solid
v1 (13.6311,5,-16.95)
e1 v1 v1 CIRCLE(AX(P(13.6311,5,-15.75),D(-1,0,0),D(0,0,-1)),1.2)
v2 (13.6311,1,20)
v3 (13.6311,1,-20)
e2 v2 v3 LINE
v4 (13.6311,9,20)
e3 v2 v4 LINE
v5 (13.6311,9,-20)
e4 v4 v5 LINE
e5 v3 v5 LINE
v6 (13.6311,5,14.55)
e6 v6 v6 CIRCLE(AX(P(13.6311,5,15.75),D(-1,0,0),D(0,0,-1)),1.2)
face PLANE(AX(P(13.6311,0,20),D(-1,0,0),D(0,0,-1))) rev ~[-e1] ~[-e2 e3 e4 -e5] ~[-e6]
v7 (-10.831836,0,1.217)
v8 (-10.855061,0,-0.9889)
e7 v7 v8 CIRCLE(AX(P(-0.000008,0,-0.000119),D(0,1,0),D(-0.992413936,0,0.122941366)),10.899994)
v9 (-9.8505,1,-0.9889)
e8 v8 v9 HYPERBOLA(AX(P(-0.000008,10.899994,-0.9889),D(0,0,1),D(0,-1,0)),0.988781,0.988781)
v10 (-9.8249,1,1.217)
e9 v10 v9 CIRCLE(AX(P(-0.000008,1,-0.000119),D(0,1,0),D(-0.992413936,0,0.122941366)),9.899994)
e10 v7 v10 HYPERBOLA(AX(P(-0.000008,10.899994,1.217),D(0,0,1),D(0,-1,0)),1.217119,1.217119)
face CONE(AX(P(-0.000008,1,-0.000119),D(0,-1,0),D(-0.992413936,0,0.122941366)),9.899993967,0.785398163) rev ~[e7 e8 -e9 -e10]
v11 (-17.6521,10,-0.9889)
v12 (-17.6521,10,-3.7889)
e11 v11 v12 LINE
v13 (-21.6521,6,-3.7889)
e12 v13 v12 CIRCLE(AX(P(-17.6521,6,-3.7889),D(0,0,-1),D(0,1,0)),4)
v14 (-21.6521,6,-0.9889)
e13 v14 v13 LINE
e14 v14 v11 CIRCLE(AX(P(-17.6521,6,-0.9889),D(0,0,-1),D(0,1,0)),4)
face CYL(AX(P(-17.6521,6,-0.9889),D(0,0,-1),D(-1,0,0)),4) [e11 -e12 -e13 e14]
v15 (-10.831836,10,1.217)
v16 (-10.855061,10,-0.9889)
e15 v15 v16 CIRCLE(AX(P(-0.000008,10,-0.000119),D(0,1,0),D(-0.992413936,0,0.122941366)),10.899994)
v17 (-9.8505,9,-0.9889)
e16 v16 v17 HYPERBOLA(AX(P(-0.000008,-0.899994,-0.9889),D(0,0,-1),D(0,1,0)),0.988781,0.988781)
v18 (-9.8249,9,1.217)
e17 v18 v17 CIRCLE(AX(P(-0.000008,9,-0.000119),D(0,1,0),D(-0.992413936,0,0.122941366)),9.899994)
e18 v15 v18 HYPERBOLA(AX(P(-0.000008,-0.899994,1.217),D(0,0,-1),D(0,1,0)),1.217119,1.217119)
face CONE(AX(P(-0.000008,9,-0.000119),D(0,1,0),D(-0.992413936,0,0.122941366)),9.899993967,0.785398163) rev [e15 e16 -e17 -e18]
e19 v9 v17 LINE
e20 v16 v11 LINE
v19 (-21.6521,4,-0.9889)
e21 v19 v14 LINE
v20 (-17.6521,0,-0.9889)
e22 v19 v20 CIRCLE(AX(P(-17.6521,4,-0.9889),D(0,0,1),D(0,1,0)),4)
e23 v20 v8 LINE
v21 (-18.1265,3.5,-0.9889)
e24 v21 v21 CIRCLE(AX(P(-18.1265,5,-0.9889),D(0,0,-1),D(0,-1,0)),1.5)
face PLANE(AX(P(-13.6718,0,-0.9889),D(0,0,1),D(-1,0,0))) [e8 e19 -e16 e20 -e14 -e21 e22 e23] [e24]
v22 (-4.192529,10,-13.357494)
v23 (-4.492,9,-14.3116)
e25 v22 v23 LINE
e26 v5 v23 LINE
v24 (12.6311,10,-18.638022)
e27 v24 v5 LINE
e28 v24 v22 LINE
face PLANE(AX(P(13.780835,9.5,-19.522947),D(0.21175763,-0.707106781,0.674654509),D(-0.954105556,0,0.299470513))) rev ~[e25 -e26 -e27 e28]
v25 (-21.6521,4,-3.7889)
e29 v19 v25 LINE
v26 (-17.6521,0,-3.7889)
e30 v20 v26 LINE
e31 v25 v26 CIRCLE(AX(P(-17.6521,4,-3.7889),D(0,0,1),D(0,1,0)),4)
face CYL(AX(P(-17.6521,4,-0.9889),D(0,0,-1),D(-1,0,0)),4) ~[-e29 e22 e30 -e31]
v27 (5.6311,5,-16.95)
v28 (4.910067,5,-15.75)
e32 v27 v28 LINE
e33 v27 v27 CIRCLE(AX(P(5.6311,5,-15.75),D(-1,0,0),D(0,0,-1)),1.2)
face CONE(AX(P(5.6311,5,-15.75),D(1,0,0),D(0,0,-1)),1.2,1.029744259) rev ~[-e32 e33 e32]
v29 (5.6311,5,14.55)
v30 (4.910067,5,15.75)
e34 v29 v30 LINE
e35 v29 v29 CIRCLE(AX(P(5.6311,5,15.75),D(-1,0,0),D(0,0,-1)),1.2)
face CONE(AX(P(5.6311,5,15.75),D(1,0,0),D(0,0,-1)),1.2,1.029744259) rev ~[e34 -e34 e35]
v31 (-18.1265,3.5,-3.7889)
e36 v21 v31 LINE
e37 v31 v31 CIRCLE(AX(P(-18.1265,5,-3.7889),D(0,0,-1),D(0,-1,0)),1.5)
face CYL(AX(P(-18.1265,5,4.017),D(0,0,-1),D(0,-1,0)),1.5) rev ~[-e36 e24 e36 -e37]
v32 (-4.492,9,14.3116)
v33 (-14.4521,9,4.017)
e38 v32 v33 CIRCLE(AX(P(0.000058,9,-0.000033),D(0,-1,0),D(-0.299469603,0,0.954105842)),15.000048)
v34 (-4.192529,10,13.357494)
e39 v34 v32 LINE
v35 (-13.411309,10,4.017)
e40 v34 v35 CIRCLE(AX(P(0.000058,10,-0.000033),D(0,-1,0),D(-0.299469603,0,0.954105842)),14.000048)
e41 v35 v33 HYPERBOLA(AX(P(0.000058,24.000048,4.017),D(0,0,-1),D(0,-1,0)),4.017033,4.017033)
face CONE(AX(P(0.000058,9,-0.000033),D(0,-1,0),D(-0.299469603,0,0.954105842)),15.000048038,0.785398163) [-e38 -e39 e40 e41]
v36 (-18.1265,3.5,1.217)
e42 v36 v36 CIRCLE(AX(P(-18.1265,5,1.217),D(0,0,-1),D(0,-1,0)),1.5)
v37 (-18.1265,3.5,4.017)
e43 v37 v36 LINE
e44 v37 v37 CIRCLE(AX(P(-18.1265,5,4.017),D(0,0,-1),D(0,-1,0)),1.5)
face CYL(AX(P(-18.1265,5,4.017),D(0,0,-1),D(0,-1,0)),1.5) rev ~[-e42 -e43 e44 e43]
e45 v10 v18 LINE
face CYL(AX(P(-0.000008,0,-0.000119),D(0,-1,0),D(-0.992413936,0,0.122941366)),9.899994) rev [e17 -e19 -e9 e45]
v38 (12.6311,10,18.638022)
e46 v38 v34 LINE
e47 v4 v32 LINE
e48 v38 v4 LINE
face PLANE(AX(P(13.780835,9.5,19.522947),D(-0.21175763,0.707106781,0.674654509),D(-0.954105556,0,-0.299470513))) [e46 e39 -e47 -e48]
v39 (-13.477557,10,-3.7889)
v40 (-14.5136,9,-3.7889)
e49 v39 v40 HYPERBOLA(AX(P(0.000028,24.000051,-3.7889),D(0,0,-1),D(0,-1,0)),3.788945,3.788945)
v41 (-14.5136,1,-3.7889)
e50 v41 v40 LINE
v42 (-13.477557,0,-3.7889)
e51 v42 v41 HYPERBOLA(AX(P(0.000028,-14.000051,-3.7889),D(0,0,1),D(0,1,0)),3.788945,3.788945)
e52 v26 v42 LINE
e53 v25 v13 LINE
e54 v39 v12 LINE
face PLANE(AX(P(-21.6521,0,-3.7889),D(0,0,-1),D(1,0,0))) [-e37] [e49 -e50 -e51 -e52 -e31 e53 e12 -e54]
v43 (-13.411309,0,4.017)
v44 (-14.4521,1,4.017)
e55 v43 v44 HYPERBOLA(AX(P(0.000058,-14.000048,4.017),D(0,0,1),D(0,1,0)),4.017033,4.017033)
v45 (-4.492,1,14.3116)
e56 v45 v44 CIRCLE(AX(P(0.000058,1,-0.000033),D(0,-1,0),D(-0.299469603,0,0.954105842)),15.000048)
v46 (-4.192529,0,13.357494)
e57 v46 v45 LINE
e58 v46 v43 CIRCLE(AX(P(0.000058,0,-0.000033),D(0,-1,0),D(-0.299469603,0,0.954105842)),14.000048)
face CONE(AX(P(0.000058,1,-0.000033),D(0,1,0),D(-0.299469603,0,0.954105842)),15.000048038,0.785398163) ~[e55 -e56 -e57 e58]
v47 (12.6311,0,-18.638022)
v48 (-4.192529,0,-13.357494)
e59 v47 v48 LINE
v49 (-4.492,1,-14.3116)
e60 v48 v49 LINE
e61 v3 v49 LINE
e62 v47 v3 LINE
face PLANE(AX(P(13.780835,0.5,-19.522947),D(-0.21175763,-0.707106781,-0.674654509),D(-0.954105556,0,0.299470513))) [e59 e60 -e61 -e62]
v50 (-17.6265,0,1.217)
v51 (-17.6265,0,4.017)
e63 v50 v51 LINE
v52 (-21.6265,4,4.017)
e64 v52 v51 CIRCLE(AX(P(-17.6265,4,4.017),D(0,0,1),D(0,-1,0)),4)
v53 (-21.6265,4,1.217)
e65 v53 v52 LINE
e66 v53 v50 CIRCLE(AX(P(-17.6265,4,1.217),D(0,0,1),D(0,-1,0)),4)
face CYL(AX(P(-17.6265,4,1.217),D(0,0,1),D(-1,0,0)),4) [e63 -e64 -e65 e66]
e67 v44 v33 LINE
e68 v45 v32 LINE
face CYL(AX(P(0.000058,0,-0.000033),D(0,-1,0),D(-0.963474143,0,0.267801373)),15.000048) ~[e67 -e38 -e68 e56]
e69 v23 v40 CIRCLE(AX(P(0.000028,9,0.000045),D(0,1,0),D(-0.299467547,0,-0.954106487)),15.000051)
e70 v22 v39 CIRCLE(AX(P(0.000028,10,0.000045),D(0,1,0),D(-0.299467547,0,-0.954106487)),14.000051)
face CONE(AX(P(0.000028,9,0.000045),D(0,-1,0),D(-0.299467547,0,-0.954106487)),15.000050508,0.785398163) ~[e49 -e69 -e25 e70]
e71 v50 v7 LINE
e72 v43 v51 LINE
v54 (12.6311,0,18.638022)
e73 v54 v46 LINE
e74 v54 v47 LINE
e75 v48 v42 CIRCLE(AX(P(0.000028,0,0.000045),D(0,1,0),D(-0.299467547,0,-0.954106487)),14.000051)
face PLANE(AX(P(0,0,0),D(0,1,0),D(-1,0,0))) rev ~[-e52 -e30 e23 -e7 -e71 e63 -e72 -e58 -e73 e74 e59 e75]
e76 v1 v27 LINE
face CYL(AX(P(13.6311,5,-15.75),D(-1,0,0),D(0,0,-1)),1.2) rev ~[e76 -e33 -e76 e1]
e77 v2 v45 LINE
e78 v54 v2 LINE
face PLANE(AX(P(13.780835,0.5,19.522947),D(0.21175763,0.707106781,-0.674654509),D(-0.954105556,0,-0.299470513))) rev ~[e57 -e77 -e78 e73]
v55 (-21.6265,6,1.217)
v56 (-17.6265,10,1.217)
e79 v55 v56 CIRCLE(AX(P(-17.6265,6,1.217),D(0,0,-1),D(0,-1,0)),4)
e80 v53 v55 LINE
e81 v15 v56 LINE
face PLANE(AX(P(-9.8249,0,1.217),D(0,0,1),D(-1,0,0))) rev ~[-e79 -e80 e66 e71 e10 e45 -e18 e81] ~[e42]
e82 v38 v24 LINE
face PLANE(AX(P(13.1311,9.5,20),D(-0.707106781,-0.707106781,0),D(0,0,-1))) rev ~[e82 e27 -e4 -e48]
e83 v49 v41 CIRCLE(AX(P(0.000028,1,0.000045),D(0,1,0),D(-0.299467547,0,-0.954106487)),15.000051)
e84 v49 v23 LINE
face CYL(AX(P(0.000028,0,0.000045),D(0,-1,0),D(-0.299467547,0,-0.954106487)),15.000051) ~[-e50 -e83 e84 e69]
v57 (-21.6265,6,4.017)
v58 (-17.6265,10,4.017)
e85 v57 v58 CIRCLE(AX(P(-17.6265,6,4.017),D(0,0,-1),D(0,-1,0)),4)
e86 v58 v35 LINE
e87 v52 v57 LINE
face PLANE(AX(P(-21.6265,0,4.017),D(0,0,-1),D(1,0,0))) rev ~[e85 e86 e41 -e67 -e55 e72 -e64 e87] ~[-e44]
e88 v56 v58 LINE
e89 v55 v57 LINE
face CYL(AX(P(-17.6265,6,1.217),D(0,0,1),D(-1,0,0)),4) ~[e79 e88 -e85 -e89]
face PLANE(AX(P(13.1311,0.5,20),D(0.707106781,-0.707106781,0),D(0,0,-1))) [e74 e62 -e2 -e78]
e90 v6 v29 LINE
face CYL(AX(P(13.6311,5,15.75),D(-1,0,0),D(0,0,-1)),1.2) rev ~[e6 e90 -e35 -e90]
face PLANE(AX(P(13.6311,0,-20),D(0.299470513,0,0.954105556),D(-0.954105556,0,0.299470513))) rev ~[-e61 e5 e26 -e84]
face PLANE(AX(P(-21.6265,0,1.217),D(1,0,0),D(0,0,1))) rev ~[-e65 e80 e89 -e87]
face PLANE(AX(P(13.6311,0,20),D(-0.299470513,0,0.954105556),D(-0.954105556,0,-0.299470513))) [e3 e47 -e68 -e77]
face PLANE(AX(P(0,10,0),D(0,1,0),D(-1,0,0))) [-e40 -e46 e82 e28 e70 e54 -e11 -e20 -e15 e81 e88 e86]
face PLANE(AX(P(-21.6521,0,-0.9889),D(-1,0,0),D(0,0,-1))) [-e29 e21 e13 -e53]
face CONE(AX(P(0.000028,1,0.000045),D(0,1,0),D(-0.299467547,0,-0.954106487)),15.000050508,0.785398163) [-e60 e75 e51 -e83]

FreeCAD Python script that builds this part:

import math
import FreeCAD as App
import Part
import Sketcher
Q = App.Units.Quantity


def edges_at(feature, points):
    """Names of the edges that pass closest to the given points."""
    edges = feature.Shape.Edges
    near = lambda p: min(range(len(edges)), key=lambda i: edges[i].distToShape(Part.Vertex(*p))[0])
    return sorted({f"Edge{near(p) + 1}" for p in points})

doc = App.newDocument("Part")
params = doc.addObject("Spreadsheet::Sheet", "Params")
for row, (alias, value) in enumerate([
    ("sketch1_radius", "15 mm"),
    ("sketch1_radius2", "9.9 mm"),
    ("sketch1_height", "40 mm"),
    ("sketch1_height2", "2.8 mm"),
    ("pad1_length", "10 mm"),
    ("fillet_radius", "4 mm"),
    ("sketch2_diameter", "3 mm"),
    ("hole_diameter", "3 mm"),
    ("hole_depth", "8 mm"),
    ("chamfer_size", "1 mm"),
    ("sketch3_diameter", "2.4 mm"),
    ("hole2_diameter", "2.4 mm"),
    ("hole2_depth", "8 mm"),
], start=1):
    params.set(f"A{row}", alias)
    params.set(f"B{row}", "=" + value)
    params.setAlias(f"B{row}", alias)

body = doc.addObject("PartDesign::Body", "Body")

# Sketch on XZ plane
sketch1 = doc.addObject("Sketcher::SketchObject", "Sketch")
body.addObject(sketch1)
sketch1.AttachmentSupport = (doc.XZ_Plane, [""])
sketch1.MapMode = "FlatFace"
sketch1.addGeometry([
    Part.ArcOfCircle(Part.Circle(App.Vector(0, 0, 0), App.Vector(0, 0, 1), 9.9), math.radians(-174), math.radians(173)),  # 0
    Part.LineSegment(App.Vector(-9.8, 1.2, 0), App.Vector(-21.6, 1.2, 0)),  # 1
    Part.LineSegment(App.Vector(-21.6, 1.2, 0), App.Vector(-21.6, 4, 0)),  # 2
    Part.LineSegment(App.Vector(-21.6, 4, 0), App.Vector(-14.5, 4, 0)),  # 3
    Part.ArcOfCircle(Part.Circle(App.Vector(0, 0, 0), App.Vector(0, 0, 1), 15), math.radians(107), math.radians(164)),  # 4
    Part.LineSegment(App.Vector(-4.5, 14.3, 0), App.Vector(13.6, 20, 0)),  # 5
    Part.LineSegment(App.Vector(13.6, 20, 0), App.Vector(13.6, -20, 0)),  # 6
    Part.LineSegment(App.Vector(13.6, -20, 0), App.Vector(-4.5, -14.3, 0)),  # 7
    Part.ArcOfCircle(Part.Circle(App.Vector(0, 0, 0), App.Vector(0, 0, 1), 15), math.radians(-165), math.radians(-107)),  # 8
    Part.LineSegment(App.Vector(-14.5, -3.8, 0), App.Vector(-21.7, -3.8, 0)),  # 9
    Part.LineSegment(App.Vector(-21.7, -3.8, 0), App.Vector(-21.7, -1, 0)),  # 10
    Part.LineSegment(App.Vector(-21.7, -1, 0), App.Vector(-9.9, -1, 0)),  # 11
], False)
sketch1.addConstraint([
    Sketcher.Constraint("Coincident", 0, 2, 1, 1),
    Sketcher.Constraint("Coincident", 1, 2, 2, 1),
    Sketcher.Constraint("Coincident", 2, 2, 3, 1),
    Sketcher.Constraint("Coincident", 3, 2, 4, 2),
    Sketcher.Constraint("Tangent", 4, 1, 5, 1),
    Sketcher.Constraint("Coincident", 5, 2, 6, 1),
    Sketcher.Constraint("Coincident", 6, 2, 7, 1),
    Sketcher.Constraint("Tangent", 7, 2, 8, 2),
    Sketcher.Constraint("Coincident", 8, 1, 9, 1),
    Sketcher.Constraint("Coincident", 9, 2, 10, 1),
    Sketcher.Constraint("Coincident", 10, 2, 11, 1),
    Sketcher.Constraint("Coincident", 11, 2, 0, 1),
    Sketcher.Constraint("Horizontal", 1),
    Sketcher.Constraint("Vertical", 2),
    Sketcher.Constraint("Horizontal", 3),
    Sketcher.Constraint("Vertical", 6),
    Sketcher.Constraint("Horizontal", 9),
    Sketcher.Constraint("Vertical", 10),
    Sketcher.Constraint("Horizontal", 11),
    Sketcher.Constraint("Coincident", 0, 3, -1, 1),
    Sketcher.Constraint("Coincident", 4, 3, -1, 1),
    Sketcher.Constraint("Coincident", 8, 3, -1, 1),
    Sketcher.Constraint("Equal", 4, 8),
    Sketcher.Constraint("Vertical", 4, 1, 7, 2),
    Sketcher.Constraint("Equal", 1, 11),
    Sketcher.Constraint("Equal", 2, 10),
    Sketcher.Constraint("Radius", 4, Q("15 mm")),
    Sketcher.Constraint("Radius", 0, Q("9.9 mm")),
    Sketcher.Constraint("DistanceY", 6, 2, 6, 1, Q("40 mm")),
    Sketcher.Constraint("DistanceY", 2, 1, 2, 2, Q("2.8 mm")),
    Sketcher.Constraint("DistanceX", 9, 2, 3, 2, Q("7.2 mm")),
    Sketcher.Constraint("DistanceX", 3, 2, 4, 1, Q("9.96 mm")),
    Sketcher.Constraint("DistanceX", 1, 2, 1, 1, Q("11.8016 mm")),
    Sketcher.Constraint("DistanceX", 3, 1, 3, 2, Q("7.1744 mm")),
])
sketch1.setExpression("Constraints[26]", "Params.sketch1_radius")
sketch1.setExpression("Constraints[27]", "Params.sketch1_radius2")
sketch1.setExpression("Constraints[28]", "Params.sketch1_height")
sketch1.setExpression("Constraints[29]", "Params.sketch1_height2")
pad1 = doc.addObject("PartDesign::Pad", "Pad")
body.addObject(pad1)
pad1.Profile = sketch1
pad1.setExpression("Length", "Params.pad1_length")
pad1.Reversed = True
doc.recompute()

fillet = doc.addObject("PartDesign::Fillet", "Fillet")
body.addObject(fillet)
fillet.Base = (pad1, edges_at(pad1, [
    (-21.627, 10, 2.617),
    (-21.652, 10, -2.389),
    (-21.627, 0, 2.617),
    (-21.652, 0, -2.389),
]))
fillet.setExpression("Radius", "Params.fillet_radius")

# Sketch on XY plane
sketch2 = doc.addObject("Sketcher::SketchObject", "Sketch001")
body.addObject(sketch2)
sketch2.AttachmentSupport = (doc.XY_Plane, [""])
sketch2.MapMode = "FlatFace"
sketch2.AttachmentOffset = App.Placement(App.Vector(0, 0, 4.017), App.Rotation())
sketch2.addGeometry(Part.Circle(App.Vector(-18.1, 5, 0), App.Vector(0, 0, 1), 1.5), False)
sketch2.addConstraint([
    Sketcher.Constraint("Diameter", 0, Q("3 mm")),
    Sketcher.Constraint("DistanceY", -1, 1, 0, 3, Q("5 mm")),
    Sketcher.Constraint("DistanceX", 0, 3, -1, 1, Q("18.1265 mm")),
])
sketch2.setExpression("Constraints[0]", "Params.sketch2_diameter")
doc.recompute()
hole = doc.addObject("PartDesign::Hole", "Hole")
body.addObject(hole)
hole.Profile = sketch2
hole.ThreadType = "None"
hole.setExpression("Diameter", "Params.hole_diameter")
hole.DepthType = "Dimension"
hole.setExpression("Depth", "Params.hole_depth")
hole.DrillPoint = "Angled"
hole.DrillPointAngle = 118
doc.recompute()

chamfer = doc.addObject("PartDesign::Chamfer", "Chamfer")
body.addObject(chamfer)
chamfer.Base = (hole, edges_at(hole, [
    (9.899, 10, -0.115),
    (9.899, 0, -0.115),
    (4.57, 10, 17.156),
    (13.631, 10, 0),
    (4.57, 10, -17.156),
    (-10.862, 10, -10.345),
    (-10.78, 10, 10.43),
    (4.57, 0, 17.156),
    (13.631, 0, 0),
    (4.57, 0, -17.156),
    (-10.862, 0, -10.345),
    (-10.78, 0, 10.43),
]))
chamfer.setExpression("Size", "Params.chamfer_size")

# Sketch on YZ plane
sketch3 = doc.addObject("Sketcher::SketchObject", "Sketch002")
body.addObject(sketch3)
sketch3.AttachmentSupport = (doc.YZ_Plane, [""])
sketch3.MapMode = "FlatFace"
sketch3.AttachmentOffset = App.Placement(App.Vector(0, 0, 13.6311), App.Rotation())
sketch3.addGeometry([
    Part.Circle(App.Vector(5, 15.8, 0), App.Vector(0, 0, 1), 1.2),
    Part.Circle(App.Vector(5, -15.8, 0), App.Vector(0, 0, 1), 1.2),
], False)
sketch3.addConstraint([
    Sketcher.Constraint("Equal", 0, 1),
    Sketcher.Constraint("Symmetric", 0, 3, 1, 3, -1),
    Sketcher.Constraint("Diameter", 0, Q("2.4 mm")),
    Sketcher.Constraint("DistanceX", -1, 1, 0, 3, Q("5 mm")),
    Sketcher.Constraint("DistanceY", 1, 3, 0, 3, Q("31.5 mm")),
])
sketch3.setExpression("Constraints[2]", "Params.sketch3_diameter")
doc.recompute()
hole2 = doc.addObject("PartDesign::Hole", "Hole001")
body.addObject(hole2)
hole2.Profile = sketch3
hole2.ThreadType = "None"
hole2.setExpression("Diameter", "Params.hole2_diameter")
hole2.DepthType = "Dimension"
hole2.setExpression("Depth", "Params.hole2_depth")
hole2.DrillPoint = "Angled"
hole2.DrillPointAngle = 118

doc.recompute()
